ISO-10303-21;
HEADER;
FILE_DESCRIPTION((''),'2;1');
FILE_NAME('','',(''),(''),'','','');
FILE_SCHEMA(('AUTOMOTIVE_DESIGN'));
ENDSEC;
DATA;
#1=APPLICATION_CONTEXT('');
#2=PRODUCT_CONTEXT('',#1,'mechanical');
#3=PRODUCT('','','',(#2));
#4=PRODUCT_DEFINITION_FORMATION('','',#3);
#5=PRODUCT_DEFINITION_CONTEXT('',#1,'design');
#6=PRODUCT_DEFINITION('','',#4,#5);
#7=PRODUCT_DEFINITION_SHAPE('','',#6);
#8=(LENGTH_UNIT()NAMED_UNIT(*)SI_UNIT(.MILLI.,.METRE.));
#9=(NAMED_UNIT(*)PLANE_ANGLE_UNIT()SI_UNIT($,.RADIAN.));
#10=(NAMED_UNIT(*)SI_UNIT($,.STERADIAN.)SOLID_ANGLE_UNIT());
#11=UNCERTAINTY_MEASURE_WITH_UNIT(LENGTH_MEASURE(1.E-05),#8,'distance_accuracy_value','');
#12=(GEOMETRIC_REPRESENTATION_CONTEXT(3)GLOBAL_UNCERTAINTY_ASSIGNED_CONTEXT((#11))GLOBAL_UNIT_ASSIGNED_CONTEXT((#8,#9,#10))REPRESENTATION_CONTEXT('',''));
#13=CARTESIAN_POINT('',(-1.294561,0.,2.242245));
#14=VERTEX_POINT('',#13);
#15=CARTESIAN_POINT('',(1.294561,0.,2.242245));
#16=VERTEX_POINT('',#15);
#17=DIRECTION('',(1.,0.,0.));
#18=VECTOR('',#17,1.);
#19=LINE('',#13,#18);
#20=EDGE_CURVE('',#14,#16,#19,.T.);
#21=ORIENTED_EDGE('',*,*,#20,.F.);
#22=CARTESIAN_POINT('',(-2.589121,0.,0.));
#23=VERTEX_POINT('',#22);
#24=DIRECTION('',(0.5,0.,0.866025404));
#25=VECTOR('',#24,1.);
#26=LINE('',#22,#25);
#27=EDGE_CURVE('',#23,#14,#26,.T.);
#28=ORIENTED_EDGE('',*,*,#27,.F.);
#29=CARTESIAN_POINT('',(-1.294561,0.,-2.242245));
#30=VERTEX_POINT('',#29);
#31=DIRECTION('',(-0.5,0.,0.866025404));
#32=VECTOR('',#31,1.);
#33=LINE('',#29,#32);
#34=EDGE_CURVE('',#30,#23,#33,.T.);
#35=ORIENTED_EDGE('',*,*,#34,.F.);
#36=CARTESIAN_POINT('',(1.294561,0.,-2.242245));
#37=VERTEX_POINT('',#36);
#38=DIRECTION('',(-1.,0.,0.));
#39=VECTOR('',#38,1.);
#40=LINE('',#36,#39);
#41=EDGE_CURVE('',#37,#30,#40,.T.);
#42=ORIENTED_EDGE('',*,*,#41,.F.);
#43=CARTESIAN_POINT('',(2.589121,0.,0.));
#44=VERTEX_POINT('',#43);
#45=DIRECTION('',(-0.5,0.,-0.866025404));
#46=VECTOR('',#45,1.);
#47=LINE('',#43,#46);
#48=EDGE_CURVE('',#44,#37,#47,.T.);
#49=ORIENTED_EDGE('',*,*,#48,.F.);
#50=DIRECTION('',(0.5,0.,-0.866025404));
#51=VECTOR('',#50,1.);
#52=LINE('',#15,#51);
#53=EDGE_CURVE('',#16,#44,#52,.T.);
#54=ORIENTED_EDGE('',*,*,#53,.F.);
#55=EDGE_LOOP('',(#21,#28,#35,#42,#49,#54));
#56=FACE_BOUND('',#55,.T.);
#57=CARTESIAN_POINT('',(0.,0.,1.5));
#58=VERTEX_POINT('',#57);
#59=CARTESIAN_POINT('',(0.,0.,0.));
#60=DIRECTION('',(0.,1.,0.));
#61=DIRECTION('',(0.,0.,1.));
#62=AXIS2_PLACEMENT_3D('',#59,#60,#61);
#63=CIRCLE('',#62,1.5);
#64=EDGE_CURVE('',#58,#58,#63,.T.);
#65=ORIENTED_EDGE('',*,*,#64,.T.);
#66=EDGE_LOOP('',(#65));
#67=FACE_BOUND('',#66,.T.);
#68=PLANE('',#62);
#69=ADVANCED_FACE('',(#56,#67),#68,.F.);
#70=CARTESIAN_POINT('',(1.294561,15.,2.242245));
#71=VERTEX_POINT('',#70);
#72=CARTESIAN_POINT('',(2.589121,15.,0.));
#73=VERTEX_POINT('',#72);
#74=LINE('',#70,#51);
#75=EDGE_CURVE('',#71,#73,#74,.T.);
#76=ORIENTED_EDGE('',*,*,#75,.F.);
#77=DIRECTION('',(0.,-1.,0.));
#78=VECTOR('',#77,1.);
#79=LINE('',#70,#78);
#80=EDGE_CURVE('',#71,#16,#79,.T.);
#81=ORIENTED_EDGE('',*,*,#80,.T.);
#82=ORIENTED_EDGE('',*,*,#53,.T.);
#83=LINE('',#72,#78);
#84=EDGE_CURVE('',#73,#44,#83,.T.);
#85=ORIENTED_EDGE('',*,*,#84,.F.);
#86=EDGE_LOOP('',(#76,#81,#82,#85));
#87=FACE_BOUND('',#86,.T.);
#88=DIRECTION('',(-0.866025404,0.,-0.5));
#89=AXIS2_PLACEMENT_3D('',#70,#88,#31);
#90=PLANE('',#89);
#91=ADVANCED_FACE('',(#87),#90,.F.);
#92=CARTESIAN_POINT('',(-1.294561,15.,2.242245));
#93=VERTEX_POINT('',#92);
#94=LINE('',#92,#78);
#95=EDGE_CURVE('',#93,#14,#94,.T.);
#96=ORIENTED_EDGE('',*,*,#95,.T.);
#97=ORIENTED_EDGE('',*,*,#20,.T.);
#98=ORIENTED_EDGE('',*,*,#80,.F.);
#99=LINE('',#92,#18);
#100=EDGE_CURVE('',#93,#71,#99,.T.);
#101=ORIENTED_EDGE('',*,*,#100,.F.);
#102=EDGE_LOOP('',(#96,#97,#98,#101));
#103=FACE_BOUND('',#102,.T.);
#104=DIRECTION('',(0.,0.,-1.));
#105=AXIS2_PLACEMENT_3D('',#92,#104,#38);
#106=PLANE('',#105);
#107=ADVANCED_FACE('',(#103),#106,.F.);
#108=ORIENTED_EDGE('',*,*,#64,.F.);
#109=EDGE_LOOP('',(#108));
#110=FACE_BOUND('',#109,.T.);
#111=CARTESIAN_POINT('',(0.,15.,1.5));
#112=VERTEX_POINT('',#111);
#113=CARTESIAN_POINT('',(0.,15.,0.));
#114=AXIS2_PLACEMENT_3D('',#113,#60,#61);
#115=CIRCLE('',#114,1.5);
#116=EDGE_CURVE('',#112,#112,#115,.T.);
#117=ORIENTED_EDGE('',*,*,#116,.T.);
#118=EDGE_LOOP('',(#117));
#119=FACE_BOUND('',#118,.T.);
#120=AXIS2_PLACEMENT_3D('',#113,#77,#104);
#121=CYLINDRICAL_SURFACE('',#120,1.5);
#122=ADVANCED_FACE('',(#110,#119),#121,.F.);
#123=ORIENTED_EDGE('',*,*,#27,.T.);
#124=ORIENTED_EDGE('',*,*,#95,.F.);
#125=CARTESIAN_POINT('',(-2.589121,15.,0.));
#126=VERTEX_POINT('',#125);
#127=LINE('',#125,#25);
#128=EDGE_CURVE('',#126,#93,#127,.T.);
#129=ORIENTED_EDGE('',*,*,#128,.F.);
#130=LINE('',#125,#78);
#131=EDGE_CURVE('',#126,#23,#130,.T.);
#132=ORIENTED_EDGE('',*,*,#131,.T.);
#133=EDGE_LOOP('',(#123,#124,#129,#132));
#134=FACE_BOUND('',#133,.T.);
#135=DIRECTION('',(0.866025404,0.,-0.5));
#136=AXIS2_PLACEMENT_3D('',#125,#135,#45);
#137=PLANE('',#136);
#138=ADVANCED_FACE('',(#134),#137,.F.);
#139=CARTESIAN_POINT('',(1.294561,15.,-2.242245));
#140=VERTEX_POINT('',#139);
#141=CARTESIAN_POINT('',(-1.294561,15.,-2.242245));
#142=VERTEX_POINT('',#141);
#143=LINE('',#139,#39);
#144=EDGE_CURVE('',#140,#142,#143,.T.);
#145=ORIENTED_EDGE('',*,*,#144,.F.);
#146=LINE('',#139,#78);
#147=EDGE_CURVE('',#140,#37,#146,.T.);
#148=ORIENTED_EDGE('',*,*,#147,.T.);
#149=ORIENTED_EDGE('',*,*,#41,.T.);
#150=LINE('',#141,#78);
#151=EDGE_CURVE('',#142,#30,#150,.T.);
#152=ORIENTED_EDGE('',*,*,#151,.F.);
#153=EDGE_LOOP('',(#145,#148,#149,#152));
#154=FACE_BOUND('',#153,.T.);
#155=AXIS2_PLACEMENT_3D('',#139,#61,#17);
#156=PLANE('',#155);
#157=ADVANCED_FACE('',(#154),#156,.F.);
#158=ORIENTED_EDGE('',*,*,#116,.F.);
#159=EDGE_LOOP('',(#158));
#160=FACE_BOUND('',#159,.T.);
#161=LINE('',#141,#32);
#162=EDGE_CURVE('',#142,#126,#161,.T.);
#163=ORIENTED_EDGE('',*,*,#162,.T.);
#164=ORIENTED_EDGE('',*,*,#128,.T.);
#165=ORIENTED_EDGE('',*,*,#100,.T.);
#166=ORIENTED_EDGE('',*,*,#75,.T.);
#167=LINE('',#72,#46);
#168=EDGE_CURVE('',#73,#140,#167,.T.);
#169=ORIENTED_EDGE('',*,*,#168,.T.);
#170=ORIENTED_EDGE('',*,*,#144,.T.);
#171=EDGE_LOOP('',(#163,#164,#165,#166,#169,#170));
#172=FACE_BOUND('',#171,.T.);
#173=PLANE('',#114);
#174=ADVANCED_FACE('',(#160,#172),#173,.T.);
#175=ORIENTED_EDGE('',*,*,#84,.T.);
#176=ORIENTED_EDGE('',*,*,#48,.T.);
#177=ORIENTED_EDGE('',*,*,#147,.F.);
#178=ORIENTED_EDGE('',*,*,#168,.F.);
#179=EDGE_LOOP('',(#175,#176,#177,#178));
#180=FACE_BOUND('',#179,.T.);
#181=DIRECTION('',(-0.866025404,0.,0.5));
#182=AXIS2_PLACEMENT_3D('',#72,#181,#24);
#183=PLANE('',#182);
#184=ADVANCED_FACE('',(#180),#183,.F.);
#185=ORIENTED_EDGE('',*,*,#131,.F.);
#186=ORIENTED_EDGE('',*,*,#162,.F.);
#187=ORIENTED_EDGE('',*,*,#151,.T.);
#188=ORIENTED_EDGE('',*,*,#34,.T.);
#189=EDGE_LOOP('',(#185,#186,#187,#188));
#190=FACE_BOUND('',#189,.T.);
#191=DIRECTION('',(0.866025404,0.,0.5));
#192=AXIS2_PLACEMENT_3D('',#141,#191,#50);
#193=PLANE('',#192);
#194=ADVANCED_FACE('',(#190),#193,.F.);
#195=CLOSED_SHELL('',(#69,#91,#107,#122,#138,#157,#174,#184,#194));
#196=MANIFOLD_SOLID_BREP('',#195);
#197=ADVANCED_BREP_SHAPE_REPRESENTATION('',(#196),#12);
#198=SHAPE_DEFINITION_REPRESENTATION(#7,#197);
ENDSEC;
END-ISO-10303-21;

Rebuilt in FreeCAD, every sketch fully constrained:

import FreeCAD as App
import Part
import Sketcher

V = App.Vector
Q = App.Units.Quantity


def add_polygon(sketch, points):
    """Adds a closed chain of lines whose ends are joined by coincident constraints."""
    first, n = sketch.GeometryCount, len(points)
    for a, b in zip(points, points[1:] + points[:1]):
        sketch.addGeometry(Part.LineSegment(App.Vector(*a, 0), App.Vector(*b, 0)), False)
    for i in range(n):
        sketch.addConstraint(Sketcher.Constraint("Coincident", first + i, 2, first + (i + 1) % n, 1))

doc = App.newDocument("Part")
body = doc.addObject("PartDesign::Body", "Body")

# Sketch on XZ plane
sketch1 = body.newObject("Sketcher::SketchObject", "Sketch")
sketch1.AttachmentSupport = (doc.getObject("XZ_Plane"), [""])
sketch1.MapMode = "FlatFace"
add_polygon(sketch1, [(-1.3, -2.2), (-2.6, 0), (-1.3, 2.2), (1.3, 2.2), (2.6, 0), (1.3, -2.2)])  # lines 0-5
sketch1.addGeometry(Part.Circle(V(0, 0, 0), V(0, 0, 1), 1.5), False)  # 6
sketch1.addConstraint([
    Sketcher.Constraint("Horizontal", 2),
    Sketcher.Constraint("Horizontal", 5),
    Sketcher.Constraint("Coincident", 6, 3, -1, 1),
    Sketcher.Constraint("Symmetric", 0, 2, 3, 2, -1, 1),
    Sketcher.Constraint("Symmetric", 1, 2, 4, 2, -1, 1),
    Sketcher.Constraint("PointOnObject", 0, 2, -1),
    Sketcher.Constraint("Parallel", 0, 3),
    Sketcher.Constraint("Vertical", 2, 2, 4, 2),
    Sketcher.Constraint("Diameter", 6, Q("3 mm")),
    Sketcher.Constraint("Angle", 0, Q("120 deg")),
    Sketcher.Constraint("DistanceX", 2, 1, 2, 2, Q("2.589121 mm")),
    Sketcher.Constraint("Distance", 0, Q("2.589121 mm")),
])
pad1 = body.newObject("PartDesign::Pad", "Pad")
pad1.Profile = sketch1
pad1.Length = 15
pad1.Reversed = True

doc.recompute()
